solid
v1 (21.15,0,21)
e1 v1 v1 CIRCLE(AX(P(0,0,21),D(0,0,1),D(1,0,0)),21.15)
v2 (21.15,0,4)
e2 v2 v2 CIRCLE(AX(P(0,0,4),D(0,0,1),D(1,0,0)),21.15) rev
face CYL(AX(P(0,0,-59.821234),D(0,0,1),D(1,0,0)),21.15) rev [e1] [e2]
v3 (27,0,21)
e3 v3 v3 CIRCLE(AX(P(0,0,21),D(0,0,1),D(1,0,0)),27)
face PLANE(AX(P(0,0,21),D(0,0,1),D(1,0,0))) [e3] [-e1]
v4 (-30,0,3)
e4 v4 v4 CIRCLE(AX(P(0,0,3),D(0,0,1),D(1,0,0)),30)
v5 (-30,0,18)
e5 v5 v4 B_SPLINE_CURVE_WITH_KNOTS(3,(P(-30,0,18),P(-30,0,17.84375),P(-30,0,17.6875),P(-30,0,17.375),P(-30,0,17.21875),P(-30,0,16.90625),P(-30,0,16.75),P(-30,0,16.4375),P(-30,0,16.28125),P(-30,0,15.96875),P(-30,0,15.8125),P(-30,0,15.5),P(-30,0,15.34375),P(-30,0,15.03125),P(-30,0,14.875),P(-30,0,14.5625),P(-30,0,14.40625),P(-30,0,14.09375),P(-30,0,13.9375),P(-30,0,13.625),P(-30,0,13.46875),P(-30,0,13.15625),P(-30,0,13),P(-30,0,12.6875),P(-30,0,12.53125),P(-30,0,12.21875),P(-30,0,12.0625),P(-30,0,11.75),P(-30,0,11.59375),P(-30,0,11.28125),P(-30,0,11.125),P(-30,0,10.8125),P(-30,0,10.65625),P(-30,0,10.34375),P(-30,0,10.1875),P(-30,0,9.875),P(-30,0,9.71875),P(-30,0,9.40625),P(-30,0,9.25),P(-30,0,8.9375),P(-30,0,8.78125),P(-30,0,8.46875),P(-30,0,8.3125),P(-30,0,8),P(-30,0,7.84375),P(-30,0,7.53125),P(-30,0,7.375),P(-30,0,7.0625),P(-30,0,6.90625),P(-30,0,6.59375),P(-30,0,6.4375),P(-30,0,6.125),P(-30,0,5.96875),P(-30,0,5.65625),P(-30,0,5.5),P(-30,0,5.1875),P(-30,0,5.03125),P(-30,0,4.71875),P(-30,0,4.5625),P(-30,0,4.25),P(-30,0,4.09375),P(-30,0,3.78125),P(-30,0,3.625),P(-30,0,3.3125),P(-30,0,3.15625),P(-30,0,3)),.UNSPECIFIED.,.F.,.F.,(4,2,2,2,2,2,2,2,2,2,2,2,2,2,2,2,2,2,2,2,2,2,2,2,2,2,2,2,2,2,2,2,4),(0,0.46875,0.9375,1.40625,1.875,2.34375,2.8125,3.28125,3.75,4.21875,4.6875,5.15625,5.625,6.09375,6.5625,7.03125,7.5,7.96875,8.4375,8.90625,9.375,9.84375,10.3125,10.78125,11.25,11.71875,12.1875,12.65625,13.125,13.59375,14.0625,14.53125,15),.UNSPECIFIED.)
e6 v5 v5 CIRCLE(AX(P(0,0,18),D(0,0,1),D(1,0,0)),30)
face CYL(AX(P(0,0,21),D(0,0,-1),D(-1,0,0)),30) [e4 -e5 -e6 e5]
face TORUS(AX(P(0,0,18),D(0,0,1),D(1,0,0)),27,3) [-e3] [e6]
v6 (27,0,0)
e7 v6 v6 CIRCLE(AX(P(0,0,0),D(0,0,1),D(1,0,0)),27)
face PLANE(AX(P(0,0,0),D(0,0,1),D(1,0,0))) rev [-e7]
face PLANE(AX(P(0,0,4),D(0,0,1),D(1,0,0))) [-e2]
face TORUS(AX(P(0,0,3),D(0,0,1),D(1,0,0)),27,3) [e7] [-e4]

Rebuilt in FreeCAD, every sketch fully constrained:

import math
import FreeCAD as App
import Part
import Sketcher

V = App.Vector

doc = App.newDocument("Part")
params = doc.addObject("Spreadsheet::Sheet", "Params")
for row, (alias, value) in enumerate([
    ("sketch1_diameter", "60 mm"),
    ("pad1_length", "21 mm"),
    ("sketch2_diameter", "42.3 mm"),
    ("pocket1_length", "17 mm"),
    ("sketch3_radius", "3 mm"),
    ("groove_angle", "360 deg"),
], start=1):
    params.set(f"A{row}", alias)
    params.set(f"B{row}", "=" + value)
    params.setAlias(f"B{row}", alias)

body = doc.addObject("PartDesign::Body", "Body")

# Sketch on XY plane
sketch1 = doc.addObject("Sketcher::SketchObject", "Sketch")
body.addObject(sketch1)
sketch1.AttachmentSupport = (doc.XY_Plane, [""])
sketch1.MapMode = "FlatFace"
sketch1.addGeometry(Part.Circle(V(0, 0, 0), V(0, 0, 1), 30), False)
sketch1.addConstraint([
    Sketcher.Constraint("Coincident", 0, 3, -1, 1),
    Sketcher.Constraint("Diameter", 0, 60.0),
])
sketch1.setExpression("Constraints[1]", "Params.sketch1_diameter")
pad1 = doc.addObject("PartDesign::Pad", "Pad")
body.addObject(pad1)
pad1.Profile = sketch1
pad1.setExpression("Length", "Params.pad1_length")

# Sketch on XY plane
sketch2 = doc.addObject("Sketcher::SketchObject", "Sketch001")
body.addObject(sketch2)
sketch2.AttachmentSupport = (doc.XY_Plane, [""])
sketch2.MapMode = "FlatFace"
sketch2.AttachmentOffset = App.Placement(V(0, 0, 21), App.Rotation())
sketch2.addGeometry(Part.Circle(V(0, 0, 0), V(0, 0, 1), 21.15), False)
sketch2.addConstraint([
    Sketcher.Constraint("Coincident", 0, 3, -1, 1),
    Sketcher.Constraint("Diameter", 0, 42.3),
])
sketch2.setExpression("Constraints[1]", "Params.sketch2_diameter")
pocket1 = doc.addObject("PartDesign::Pocket", "Pocket")
body.addObject(pocket1)
pocket1.Profile = sketch2
pocket1.setExpression("Length", "Params.pocket1_length")

# Sketch on XZ plane
sketch3 = doc.addObject("Sketcher::SketchObject", "Sketch002")
body.addObject(sketch3)
sketch3.AttachmentSupport = (doc.XZ_Plane, [""])
sketch3.MapMode = "FlatFace"
sketch3.addGeometry([
    Part.ArcOfCircle(Part.Circle(V(-27, 3, 0), V(0, 0, 1), 3), math.radians(180), math.radians(270)),  # 0
    Part.LineSegment(V(-27, 0, 0), V(-30, 0, 0)),  # 1
    Part.LineSegment(V(-30, 0, 0), V(-30, 3, 0)),  # 2
    Part.ArcOfCircle(Part.Circle(V(-27, 18, 0), V(0, 0, 1), 3), math.radians(90), math.radians(180)),  # 3
    Part.LineSegment(V(-30, 18, 0), V(-30, 21, 0)),  # 4
    Part.LineSegment(V(-30, 21, 0), V(-27, 21, 0)),  # 5
], False)
sketch3.addConstraint([
    Sketcher.Constraint("Tangent", 0, 2, 1, 1),
    Sketcher.Constraint("Coincident", 1, 2, 2, 1),
    Sketcher.Constraint("Tangent", 2, 2, 0, 1),
    Sketcher.Constraint("Tangent", 3, 2, 4, 1),
    Sketcher.Constraint("Coincident", 4, 2, 5, 1),
    Sketcher.Constraint("Tangent", 5, 2, 3, 1),
    Sketcher.Constraint("Horizontal", 1),
    Sketcher.Constraint("Vertical", 2),
    Sketcher.Constraint("Vertical", 4),
    Sketcher.Constraint("Horizontal", 5),
    Sketcher.Constraint("Equal", 0, 3),
    Sketcher.Constraint("PointOnObject", 0, 2, -1),
    Sketcher.Constraint("Vertical", 0, 3, 3, 3),
    Sketcher.Constraint("Radius", 0, 3.0),
    Sketcher.Constraint("DistanceX", 0, 3, -1, 1, 27.0),
    Sketcher.Constraint("DistanceY", -1, 1, 3, 3, 18.0),
])
sketch3.setExpression("Constraints[13]", "Params.sketch3_radius")
groove = doc.addObject("PartDesign::Groove", "Groove")
body.addObject(groove)
groove.Profile = sketch3
groove.ReferenceAxis = (sketch3, ["V_Axis"])
groove.setExpression("Angle", "Params.groove_angle")

doc.recompute()
